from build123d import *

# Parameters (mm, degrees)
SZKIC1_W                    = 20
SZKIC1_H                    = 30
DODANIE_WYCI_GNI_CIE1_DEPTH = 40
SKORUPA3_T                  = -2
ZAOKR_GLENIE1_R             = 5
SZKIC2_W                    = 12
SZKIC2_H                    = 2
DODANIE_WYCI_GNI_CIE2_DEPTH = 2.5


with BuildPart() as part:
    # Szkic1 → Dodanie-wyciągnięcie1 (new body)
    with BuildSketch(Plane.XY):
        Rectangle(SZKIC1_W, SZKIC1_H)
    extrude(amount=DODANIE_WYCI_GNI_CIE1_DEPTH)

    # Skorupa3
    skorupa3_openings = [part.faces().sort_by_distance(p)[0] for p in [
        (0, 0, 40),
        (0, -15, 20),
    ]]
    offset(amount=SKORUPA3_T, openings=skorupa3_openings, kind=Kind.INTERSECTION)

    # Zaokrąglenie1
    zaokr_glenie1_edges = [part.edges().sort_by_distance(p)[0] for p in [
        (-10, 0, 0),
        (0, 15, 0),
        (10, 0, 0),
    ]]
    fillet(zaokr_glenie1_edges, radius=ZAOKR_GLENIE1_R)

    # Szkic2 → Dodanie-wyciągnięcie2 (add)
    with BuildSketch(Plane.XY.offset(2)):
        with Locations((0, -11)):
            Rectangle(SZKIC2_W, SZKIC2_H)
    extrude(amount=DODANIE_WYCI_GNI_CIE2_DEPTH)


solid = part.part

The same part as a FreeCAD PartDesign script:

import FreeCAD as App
import Part
import Sketcher

V = App.Vector
Q = App.Units.Quantity


def edges_at(feature, points):
    """Names of the edges that pass closest to the given points."""
    edges = feature.Shape.Edges
    near = lambda p: min(range(len(edges)), key=lambda i: edges[i].distToShape(Part.Vertex(*p))[0])
    return sorted({f"Edge{near(p) + 1}" for p in points})


def faces_at(feature, points):
    """Names of the faces that lie closest to the given points."""
    faces = feature.Shape.Faces
    near = lambda p: min(range(len(faces)), key=lambda i: faces[i].distToShape(Part.Vertex(*p))[0])
    return sorted({f"Face{near(p) + 1}" for p in points})


def add_polygon(sketch, points):
    """Adds a closed chain of lines whose ends are joined by coincident constraints."""
    first, n = sketch.GeometryCount, len(points)
    for a, b in zip(points, points[1:] + points[:1]):
        sketch.addGeometry(Part.LineSegment(App.Vector(*a, 0), App.Vector(*b, 0)), False)
    for i in range(n):
        sketch.addConstraint(Sketcher.Constraint("Coincident", first + i, 2, first + (i + 1) % n, 1))

doc = App.newDocument("Part")
body = doc.addObject("PartDesign::Body", "Body")

sketch1 = body.newObject("Sketcher::SketchObject", "Sketch")
sketch1.AttachmentSupport = (doc.getObject("XY_Plane"), [""])
sketch1.MapMode = "FlatFace"
add_polygon(sketch1, [(-10, 15), (-10, -15), (10, -15), (10, 15)])
sketch1.addConstraint([
    Sketcher.Constraint("Vertical", 0),
    Sketcher.Constraint("Horizontal", 1),
    Sketcher.Constraint("Vertical", 2),
    Sketcher.Constraint("Horizontal", 3),
    Sketcher.Constraint("Symmetric", 0, 2, 2, 2, -1, 1),
    Sketcher.Constraint("DistanceX", 1, 1, 1, 2, Q("20 mm")),
    Sketcher.Constraint("DistanceY", 0, 2, 0, 1, Q("30 mm")),
])
pad1 = body.newObject("PartDesign::Pad", "Pad")
pad1.Profile = sketch1
pad1.Length = 40
doc.recompute()

thickness = body.newObject("PartDesign::Thickness", "Thickness")
thickness.Base = (pad1, faces_at(pad1, [(0, 0, 40), (0, -15, 20)]))
thickness.Value = 2
thickness.Reversed = True
thickness.Join = "Intersection"
doc.recompute()

fillet = body.newObject("PartDesign::Fillet", "Fillet")
fillet.Base = (thickness, edges_at(thickness, [(-10, 0, 0), (0, 15, 0), (10, 0, 0)]))
fillet.Radius = 5

sketch2 = body.newObject("Sketcher::SketchObject", "Sketch001")
sketch2.AttachmentSupport = (doc.getObject("XY_Plane"), [""])
sketch2.MapMode = "FlatFace"
sketch2.AttachmentOffset = App.Placement(V(0, 0, 2), App.Rotation())
add_polygon(sketch2, [(-6, -10), (-6, -12), (6, -12), (6, -10)])
sketch2.addConstraint([
    Sketcher.Constraint("Vertical", 0),
    Sketcher.Constraint("Horizontal", 1),
    Sketcher.Constraint("Vertical", 2),
    Sketcher.Constraint("Horizontal", 3),
    Sketcher.Constraint("DistanceX", 1, 1, 1, 2, Q("12 mm")),
    Sketcher.Constraint("DistanceY", 0, 2, 0, 1, Q("2 mm")),
    Sketcher.Constraint("DistanceX", 0, 2, -1, 1, Q("6 mm")),
    Sketcher.Constraint("DistanceY", 0, 2, -1, 1, Q("12 mm")),
])
pad2 = body.newObject("PartDesign::Pad", "Pad001")
pad2.Profile = sketch2
pad2.Length = 2.5

doc.recompute()
